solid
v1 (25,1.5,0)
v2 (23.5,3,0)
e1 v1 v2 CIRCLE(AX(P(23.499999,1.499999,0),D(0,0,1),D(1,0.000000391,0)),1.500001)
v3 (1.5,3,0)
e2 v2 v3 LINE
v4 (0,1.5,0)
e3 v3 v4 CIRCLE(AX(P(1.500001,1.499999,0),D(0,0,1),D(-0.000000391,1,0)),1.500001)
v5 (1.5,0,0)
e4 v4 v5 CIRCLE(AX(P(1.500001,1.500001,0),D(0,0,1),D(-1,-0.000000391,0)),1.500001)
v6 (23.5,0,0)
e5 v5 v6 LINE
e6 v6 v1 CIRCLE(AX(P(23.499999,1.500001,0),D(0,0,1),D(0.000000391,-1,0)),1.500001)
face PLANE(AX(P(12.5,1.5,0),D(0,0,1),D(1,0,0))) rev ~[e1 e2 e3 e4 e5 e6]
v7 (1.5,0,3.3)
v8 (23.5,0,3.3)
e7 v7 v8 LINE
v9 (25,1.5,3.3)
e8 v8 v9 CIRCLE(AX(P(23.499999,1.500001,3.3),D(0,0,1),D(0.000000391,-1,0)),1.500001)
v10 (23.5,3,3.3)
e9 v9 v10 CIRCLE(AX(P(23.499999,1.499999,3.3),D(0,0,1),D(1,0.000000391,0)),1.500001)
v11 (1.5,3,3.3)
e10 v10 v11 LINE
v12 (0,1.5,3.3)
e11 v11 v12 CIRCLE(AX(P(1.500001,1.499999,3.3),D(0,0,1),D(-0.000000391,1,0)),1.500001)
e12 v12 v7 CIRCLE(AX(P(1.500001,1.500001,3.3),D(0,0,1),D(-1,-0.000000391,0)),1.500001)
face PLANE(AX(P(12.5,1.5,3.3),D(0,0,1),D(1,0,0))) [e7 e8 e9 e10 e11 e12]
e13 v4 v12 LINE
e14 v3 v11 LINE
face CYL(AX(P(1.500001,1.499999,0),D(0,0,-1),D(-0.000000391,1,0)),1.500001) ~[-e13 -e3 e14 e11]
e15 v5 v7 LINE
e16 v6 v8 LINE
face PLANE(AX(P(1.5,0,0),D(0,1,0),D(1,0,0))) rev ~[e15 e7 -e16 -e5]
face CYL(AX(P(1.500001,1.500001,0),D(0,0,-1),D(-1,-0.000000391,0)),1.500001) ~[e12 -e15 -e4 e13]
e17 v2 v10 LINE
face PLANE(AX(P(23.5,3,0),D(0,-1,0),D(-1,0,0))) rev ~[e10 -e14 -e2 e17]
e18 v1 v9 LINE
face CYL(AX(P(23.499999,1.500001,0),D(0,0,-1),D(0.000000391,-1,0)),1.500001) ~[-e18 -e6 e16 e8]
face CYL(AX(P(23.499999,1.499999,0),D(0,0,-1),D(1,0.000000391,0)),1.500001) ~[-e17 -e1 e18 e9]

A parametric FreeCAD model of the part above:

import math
import FreeCAD as App
import Part
import Sketcher

doc = App.newDocument("Part")
body = doc.addObject("PartDesign::Body", "Body")

# Sketch on XY plane
sketch1 = body.newObject("Sketcher::SketchObject", "Sketch")
sketch1.AttachmentSupport = (doc.getObject("XY_Plane"), [""])
sketch1.MapMode = "FlatFace"
sketch1.addGeometry(Part.ArcOfCircle(Part.Circle(App.Vector(1.500001, 1.500001, 0), App.Vector(0, 0, 1), 1.500001), math.radians(-179.999978), math.radians(-90.000022)), False)
sketch1.addGeometry(Part.LineSegment(App.Vector(1.5, 0, 0), App.Vector(23.5, 0, 0)), False)
sketch1.addGeometry(Part.ArcOfCircle(Part.Circle(App.Vector(23.499999, 1.500001, 0), App.Vector(0, 0, 1), 1.500001), math.radians(-89.999978), math.radians(-0.000022)), False)
sketch1.addGeometry(Part.ArcOfCircle(Part.Circle(App.Vector(23.499999, 1.499999, 0), App.Vector(0, 0, 1), 1.500001), math.radians(0.000022), math.radians(89.999978)), False)
sketch1.addGeometry(Part.LineSegment(App.Vector(23.5, 3, 0), App.Vector(1.5, 3, 0)), False)
sketch1.addGeometry(Part.ArcOfCircle(Part.Circle(App.Vector(1.500001, 1.499999, 0), App.Vector(0, 0, 1), 1.500001), math.radians(90.000022), math.radians(179.999978)), False)
sketch1.addConstraint(Sketcher.Constraint("Tangent", 0, 2, 1, 1))
sketch1.addConstraint(Sketcher.Constraint("Tangent", 1, 2, 2, 1))
sketch1.addConstraint(Sketcher.Constraint("Tangent", 2, 2, 3, 1))
sketch1.addConstraint(Sketcher.Constraint("Tangent", 3, 2, 4, 1))
sketch1.addConstraint(Sketcher.Constraint("Tangent", 4, 2, 5, 1))
sketch1.addConstraint(Sketcher.Constraint("Tangent", 5, 2, 0, 1))
sketch1.addConstraint(Sketcher.Constraint("Horizontal", 1))
sketch1.addConstraint(Sketcher.Constraint("Horizontal", 4))
sketch1.addConstraint(Sketcher.Constraint("Equal", 0, 2))
sketch1.addConstraint(Sketcher.Constraint("Equal", 2, 3))
sketch1.addConstraint(Sketcher.Constraint("PointOnObject", 0, 2, -1))
sketch1.addConstraint(Sketcher.Constraint("PointOnObject", 5, 2, -2))
sketch1.addConstraint(Sketcher.Constraint("Horizontal", 5, 3, 2, 2))
sketch1.addConstraint(Sketcher.Constraint("Horizontal", 2, 2, 5, 2))
sketch1.addConstraint(Sketcher.Constraint("Radius", 0, 1.500001))
sketch1.addConstraint(Sketcher.Constraint("DistanceX", 1, 1, 1, 2, 22.0))
pad1 = body.newObject("PartDesign::Pad", "Pad")
pad1.Profile = sketch1
pad1.Length = 3.3

doc.recompute()
